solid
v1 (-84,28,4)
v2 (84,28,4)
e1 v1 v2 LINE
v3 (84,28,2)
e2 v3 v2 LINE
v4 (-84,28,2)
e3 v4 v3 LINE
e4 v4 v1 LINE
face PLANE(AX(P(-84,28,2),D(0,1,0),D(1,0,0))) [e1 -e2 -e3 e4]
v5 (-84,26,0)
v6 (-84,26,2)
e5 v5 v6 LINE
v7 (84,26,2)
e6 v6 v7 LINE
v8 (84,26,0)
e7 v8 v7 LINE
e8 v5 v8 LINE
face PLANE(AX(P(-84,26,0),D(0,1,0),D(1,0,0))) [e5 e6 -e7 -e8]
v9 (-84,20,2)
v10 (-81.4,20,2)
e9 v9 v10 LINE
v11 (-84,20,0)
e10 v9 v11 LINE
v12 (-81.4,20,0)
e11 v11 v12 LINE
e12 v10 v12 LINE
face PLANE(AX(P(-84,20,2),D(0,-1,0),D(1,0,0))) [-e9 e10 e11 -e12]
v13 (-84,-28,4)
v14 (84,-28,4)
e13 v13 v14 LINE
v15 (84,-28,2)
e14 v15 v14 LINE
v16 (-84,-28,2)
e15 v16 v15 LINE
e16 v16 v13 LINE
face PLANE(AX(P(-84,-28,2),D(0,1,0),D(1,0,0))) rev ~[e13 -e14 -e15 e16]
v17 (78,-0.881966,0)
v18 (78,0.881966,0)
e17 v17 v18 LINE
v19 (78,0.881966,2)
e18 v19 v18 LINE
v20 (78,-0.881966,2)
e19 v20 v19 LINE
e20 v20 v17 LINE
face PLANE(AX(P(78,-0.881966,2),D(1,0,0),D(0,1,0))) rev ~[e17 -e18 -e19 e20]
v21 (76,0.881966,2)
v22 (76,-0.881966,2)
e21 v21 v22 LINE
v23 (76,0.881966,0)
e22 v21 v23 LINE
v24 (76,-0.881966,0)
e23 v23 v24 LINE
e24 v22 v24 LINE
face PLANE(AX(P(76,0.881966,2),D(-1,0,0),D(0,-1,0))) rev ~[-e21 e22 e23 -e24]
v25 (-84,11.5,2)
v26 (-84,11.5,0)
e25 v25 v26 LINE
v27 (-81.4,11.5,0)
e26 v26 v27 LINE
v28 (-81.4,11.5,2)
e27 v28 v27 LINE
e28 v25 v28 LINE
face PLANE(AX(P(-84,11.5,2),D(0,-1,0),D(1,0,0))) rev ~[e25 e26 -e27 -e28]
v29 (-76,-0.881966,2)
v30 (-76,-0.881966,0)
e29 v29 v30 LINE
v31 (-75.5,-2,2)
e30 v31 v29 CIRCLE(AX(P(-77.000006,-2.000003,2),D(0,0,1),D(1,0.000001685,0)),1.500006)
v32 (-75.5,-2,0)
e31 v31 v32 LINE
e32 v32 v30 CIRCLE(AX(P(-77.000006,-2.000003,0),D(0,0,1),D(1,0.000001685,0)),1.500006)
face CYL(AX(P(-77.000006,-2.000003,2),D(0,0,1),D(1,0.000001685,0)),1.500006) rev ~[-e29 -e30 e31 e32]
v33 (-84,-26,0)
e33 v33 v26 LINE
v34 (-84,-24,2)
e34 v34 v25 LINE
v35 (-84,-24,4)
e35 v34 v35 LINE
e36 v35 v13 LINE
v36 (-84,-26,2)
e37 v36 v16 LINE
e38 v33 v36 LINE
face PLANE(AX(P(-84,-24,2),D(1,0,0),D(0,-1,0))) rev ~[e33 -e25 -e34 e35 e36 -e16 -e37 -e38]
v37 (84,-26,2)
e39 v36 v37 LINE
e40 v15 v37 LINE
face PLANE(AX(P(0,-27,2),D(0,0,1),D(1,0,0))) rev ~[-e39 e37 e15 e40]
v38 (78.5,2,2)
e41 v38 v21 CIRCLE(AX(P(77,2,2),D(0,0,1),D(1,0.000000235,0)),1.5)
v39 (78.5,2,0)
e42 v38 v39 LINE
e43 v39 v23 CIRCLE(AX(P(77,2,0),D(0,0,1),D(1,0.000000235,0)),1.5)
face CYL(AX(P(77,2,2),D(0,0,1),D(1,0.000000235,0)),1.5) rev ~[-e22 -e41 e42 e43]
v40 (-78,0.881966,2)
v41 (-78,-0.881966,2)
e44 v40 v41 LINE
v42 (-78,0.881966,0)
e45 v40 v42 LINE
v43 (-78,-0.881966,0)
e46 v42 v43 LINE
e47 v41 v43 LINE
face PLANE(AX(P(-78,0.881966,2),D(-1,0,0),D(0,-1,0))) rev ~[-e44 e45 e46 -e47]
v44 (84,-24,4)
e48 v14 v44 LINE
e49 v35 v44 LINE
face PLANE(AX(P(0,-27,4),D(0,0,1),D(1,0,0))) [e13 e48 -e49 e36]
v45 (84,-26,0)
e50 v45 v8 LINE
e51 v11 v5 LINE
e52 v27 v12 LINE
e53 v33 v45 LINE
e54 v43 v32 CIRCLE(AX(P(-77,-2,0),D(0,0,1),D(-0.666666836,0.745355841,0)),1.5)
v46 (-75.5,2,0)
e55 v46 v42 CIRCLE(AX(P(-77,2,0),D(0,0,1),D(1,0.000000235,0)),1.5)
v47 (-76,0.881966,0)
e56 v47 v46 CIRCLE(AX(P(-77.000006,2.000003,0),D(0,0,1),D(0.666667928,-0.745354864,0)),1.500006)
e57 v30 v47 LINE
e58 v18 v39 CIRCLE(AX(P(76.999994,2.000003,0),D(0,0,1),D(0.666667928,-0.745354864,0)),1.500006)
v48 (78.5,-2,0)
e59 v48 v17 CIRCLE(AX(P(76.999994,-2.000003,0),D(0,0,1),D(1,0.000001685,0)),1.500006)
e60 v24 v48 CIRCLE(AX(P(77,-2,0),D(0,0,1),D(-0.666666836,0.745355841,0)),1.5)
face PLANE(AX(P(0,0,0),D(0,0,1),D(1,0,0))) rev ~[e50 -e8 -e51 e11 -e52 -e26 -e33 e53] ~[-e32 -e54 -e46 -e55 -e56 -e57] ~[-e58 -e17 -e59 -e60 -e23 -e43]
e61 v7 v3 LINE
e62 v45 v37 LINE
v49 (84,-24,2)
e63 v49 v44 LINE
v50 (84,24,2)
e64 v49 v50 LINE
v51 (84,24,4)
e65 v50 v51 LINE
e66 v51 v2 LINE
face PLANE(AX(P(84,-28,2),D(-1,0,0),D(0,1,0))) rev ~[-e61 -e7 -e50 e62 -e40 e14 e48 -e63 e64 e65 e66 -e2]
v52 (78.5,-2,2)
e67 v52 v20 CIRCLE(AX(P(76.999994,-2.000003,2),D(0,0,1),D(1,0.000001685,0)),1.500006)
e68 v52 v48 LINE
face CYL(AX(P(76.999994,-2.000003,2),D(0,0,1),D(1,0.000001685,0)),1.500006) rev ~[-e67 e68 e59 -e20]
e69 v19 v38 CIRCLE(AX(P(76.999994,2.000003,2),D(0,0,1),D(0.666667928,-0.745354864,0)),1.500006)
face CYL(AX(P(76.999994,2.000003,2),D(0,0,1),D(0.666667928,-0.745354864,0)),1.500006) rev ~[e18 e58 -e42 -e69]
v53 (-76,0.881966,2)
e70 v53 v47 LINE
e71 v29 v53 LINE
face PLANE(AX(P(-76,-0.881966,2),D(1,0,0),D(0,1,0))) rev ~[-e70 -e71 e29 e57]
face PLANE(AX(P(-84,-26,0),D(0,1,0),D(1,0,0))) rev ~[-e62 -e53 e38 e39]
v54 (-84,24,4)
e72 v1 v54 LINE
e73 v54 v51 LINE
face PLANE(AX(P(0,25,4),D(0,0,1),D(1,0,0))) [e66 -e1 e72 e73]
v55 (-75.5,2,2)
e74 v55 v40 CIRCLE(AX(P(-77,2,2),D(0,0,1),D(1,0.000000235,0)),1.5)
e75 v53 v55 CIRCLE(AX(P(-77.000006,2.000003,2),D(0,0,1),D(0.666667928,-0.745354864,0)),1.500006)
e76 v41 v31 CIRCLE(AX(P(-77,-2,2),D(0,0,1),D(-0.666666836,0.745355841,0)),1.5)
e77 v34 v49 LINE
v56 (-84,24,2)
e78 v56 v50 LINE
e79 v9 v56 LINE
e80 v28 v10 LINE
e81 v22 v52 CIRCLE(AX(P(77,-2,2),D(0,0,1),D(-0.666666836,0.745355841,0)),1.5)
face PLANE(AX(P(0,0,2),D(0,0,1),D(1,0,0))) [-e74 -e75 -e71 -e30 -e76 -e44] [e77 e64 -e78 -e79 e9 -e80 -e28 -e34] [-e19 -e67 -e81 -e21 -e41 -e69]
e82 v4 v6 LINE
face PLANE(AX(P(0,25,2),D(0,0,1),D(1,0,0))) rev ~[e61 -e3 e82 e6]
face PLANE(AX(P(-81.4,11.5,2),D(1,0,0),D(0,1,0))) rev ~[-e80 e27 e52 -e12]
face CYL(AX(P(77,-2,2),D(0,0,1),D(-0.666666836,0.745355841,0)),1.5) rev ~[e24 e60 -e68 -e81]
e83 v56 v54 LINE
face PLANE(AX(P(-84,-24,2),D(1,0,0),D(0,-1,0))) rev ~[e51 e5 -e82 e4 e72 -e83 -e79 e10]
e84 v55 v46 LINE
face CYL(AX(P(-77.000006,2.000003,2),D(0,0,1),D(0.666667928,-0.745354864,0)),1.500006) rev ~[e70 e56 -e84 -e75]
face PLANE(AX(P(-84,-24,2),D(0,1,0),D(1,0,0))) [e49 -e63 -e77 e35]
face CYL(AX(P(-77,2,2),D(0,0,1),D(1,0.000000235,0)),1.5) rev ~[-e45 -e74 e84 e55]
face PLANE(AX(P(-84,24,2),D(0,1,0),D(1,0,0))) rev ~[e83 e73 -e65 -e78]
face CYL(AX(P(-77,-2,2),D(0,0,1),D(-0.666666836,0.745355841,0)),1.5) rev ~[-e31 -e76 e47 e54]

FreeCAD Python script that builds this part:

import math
import FreeCAD as App
import Part
import Sketcher
from FreeCAD import Vector

doc = App.newDocument("Part")
body = doc.addObject("PartDesign::Body", "Body")

# Sketch on XY plane
sketch1 = doc.addObject("Sketcher::SketchObject", "Sketch")
body.addObject(sketch1)
sketch1.AttachmentSupport = (doc.XY_Plane, [""])
sketch1.MapMode = "FlatFace"
sketch1.addGeometry([
    Part.LineSegment(Vector(-84, 26, 0), Vector(-84, -26, 0)),
    Part.LineSegment(Vector(-84, -26, 0), Vector(84, -26, 0)),
    Part.LineSegment(Vector(84, -26, 0), Vector(84, 26, 0)),
    Part.LineSegment(Vector(84, 26, 0), Vector(-84, 26, 0)),
], False)
sketch1.addConstraint([
    Sketcher.Constraint("Coincident", 0, 2, 1, 1),
    Sketcher.Constraint("Coincident", 1, 2, 2, 1),
    Sketcher.Constraint("Coincident", 2, 2, 3, 1),
    Sketcher.Constraint("Coincident", 3, 2, 0, 1),
    Sketcher.Constraint("Vertical", 0),
    Sketcher.Constraint("Horizontal", 1),
    Sketcher.Constraint("Vertical", 2),
    Sketcher.Constraint("Horizontal", 3),
    Sketcher.Constraint("Symmetric", 0, 2, 2, 2, -1, 1),
    Sketcher.Constraint("DistanceX", 1, 1, 1, 2, 168.0),
    Sketcher.Constraint("DistanceY", 0, 2, 0, 1, 52.0),
])
pad1 = doc.addObject("PartDesign::Pad", "Pad")
body.addObject(pad1)
pad1.Profile = sketch1
pad1.Length = 2

# Sketch on XY plane
sketch2 = doc.addObject("Sketcher::SketchObject", "Sketch001")
body.addObject(sketch2)
sketch2.AttachmentSupport = (doc.XY_Plane, [""])
sketch2.MapMode = "FlatFace"
sketch2.AttachmentOffset = App.Placement(Vector(0, 0, 2), App.Rotation())
sketch2.addGeometry([
    Part.LineSegment(Vector(-84, -28, 0), Vector(84, -28, 0)),  # 0
    Part.LineSegment(Vector(84, -28, 0), Vector(84, -24, 0)),  # 1
    Part.LineSegment(Vector(84, -24, 0), Vector(-84, -24, 0)),  # 2
    Part.LineSegment(Vector(-84, -24, 0), Vector(-84, -28, 0)),  # 3
    Part.LineSegment(Vector(-84, 24, 0), Vector(84, 24, 0)),  # 4
    Part.LineSegment(Vector(84, 24, 0), Vector(84, 28, 0)),  # 5
    Part.LineSegment(Vector(84, 28, 0), Vector(-84, 28, 0)),  # 6
    Part.LineSegment(Vector(-84, 28, 0), Vector(-84, 24, 0)),  # 7
], False)
sketch2.addConstraint([
    Sketcher.Constraint("Coincident", 0, 2, 1, 1),
    Sketcher.Constraint("Coincident", 1, 2, 2, 1),
    Sketcher.Constraint("Coincident", 2, 2, 3, 1),
    Sketcher.Constraint("Coincident", 3, 2, 0, 1),
    Sketcher.Constraint("Coincident", 4, 2, 5, 1),
    Sketcher.Constraint("Coincident", 5, 2, 6, 1),
    Sketcher.Constraint("Coincident", 6, 2, 7, 1),
    Sketcher.Constraint("Coincident", 7, 2, 4, 1),
    Sketcher.Constraint("Horizontal", 0),
    Sketcher.Constraint("Vertical", 1),
    Sketcher.Constraint("Horizontal", 2),
    Sketcher.Constraint("Vertical", 3),
    Sketcher.Constraint("Horizontal", 4),
    Sketcher.Constraint("Vertical", 5),
    Sketcher.Constraint("Horizontal", 6),
    Sketcher.Constraint("Vertical", 7),
    Sketcher.Constraint("Symmetric", 2, 2, 4, 2, -1, 1),
    Sketcher.Constraint("Symmetric", 0, 2, 6, 2, -1, 1),
    Sketcher.Constraint("Vertical", 1, 2, 4, 2),
    Sketcher.Constraint("DistanceX", 0, 1, 0, 2, 168.0),
    Sketcher.Constraint("DistanceY", 1, 1, 1, 2, 4.0),
    Sketcher.Constraint("DistanceY", 0, 2, -1, 1, 28.0),
])
pad2 = doc.addObject("PartDesign::Pad", "Pad001")
body.addObject(pad2)
pad2.Profile = sketch2
pad2.Length = 2

# Sketch on XY plane
sketch3 = doc.addObject("Sketcher::SketchObject", "Sketch002")
body.addObject(sketch3)
sketch3.AttachmentSupport = (doc.XY_Plane, [""])
sketch3.MapMode = "FlatFace"
sketch3.AttachmentOffset = App.Placement(Vector(0, 0, 2), App.Rotation())
sketch3.addGeometry([
    Part.ArcOfCircle(Part.Circle(Vector(77, -2, 0), Vector(0, 0, 1), 1.5), math.radians(0), math.radians(48)),  # 0
    Part.LineSegment(Vector(78, -0.9, 0), Vector(78, 0.9, 0)),  # 1
    Part.ArcOfCircle(Part.Circle(Vector(77, 2, 0), Vector(0, 0, 1), 1.5), math.radians(-48), math.radians(0)),  # 2
    Part.ArcOfCircle(Part.Circle(Vector(77, 2, 0), Vector(0, 0, 1), 1.5), math.radians(0), math.radians(228)),  # 3
    Part.LineSegment(Vector(76, 0.9, 0), Vector(76, -0.9, 0)),  # 4
    Part.ArcOfCircle(Part.Circle(Vector(77, -2, 0), Vector(0, 0, 1), 1.5), math.radians(132), math.radians(360)),  # 5
    Part.ArcOfCircle(Part.Circle(Vector(-77, -2, 0), Vector(0, 0, 1), 1.5), math.radians(132), math.radians(360)),  # 6
    Part.ArcOfCircle(Part.Circle(Vector(-77, -2, 0), Vector(0, 0, 1), 1.5), math.radians(0), math.radians(48)),  # 7
    Part.LineSegment(Vector(-76, -0.9, 0), Vector(-76, 0.9, 0)),  # 8
    Part.ArcOfCircle(Part.Circle(Vector(-77, 2, 0), Vector(0, 0, 1), 1.5), math.radians(-48), math.radians(0)),  # 9
    Part.ArcOfCircle(Part.Circle(Vector(-77, 2, 0), Vector(0, 0, 1), 1.5), math.radians(0), math.radians(228)),  # 10
    Part.LineSegment(Vector(-78, 0.9, 0), Vector(-78, -0.9, 0)),  # 11
], False)
sketch3.addConstraint([
    Sketcher.Constraint("Coincident", 0, 2, 1, 1),
    Sketcher.Constraint("Coincident", 1, 2, 2, 1),
    Sketcher.Constraint("Tangent", 2, 2, 3, 1),
    Sketcher.Constraint("Coincident", 3, 2, 4, 1),
    Sketcher.Constraint("Coincident", 4, 2, 5, 1),
    Sketcher.Constraint("Tangent", 5, 2, 0, 1),
    Sketcher.Constraint("Tangent", 6, 2, 7, 1),
    Sketcher.Constraint("Coincident", 7, 2, 8, 1),
    Sketcher.Constraint("Coincident", 8, 2, 9, 1),
    Sketcher.Constraint("Tangent", 9, 2, 10, 1),
    Sketcher.Constraint("Coincident", 10, 2, 11, 1),
    Sketcher.Constraint("Coincident", 11, 2, 6, 1),
    Sketcher.Constraint("Vertical", 1),
    Sketcher.Constraint("Vertical", 4),
    Sketcher.Constraint("Vertical", 8),
    Sketcher.Constraint("Vertical", 11),
    Sketcher.Constraint("Equal", 0, 2),
    Sketcher.Constraint("Equal", 3, 5),
    Sketcher.Constraint("Equal", 5, 6),
    Sketcher.Constraint("Equal", 2, 7),
    Sketcher.Constraint("Equal", 7, 9),
    Sketcher.Constraint("Equal", 6, 10),
    Sketcher.Constraint("Symmetric", 2, 3, 6, 3, -1, 1),
    Sketcher.Constraint("Symmetric", 5, 3, 9, 3, -1, 1),
    Sketcher.Constraint("Symmetric", 3, 2, 7, 2, -1, 1),
    Sketcher.Constraint("Symmetric", 0, 3, 6, 3, -2),
    Sketcher.Constraint("Horizontal", 10, 3, 2, 2),
    Sketcher.Constraint("Horizontal", 1, 2, 3, 2),
    Sketcher.Constraint("Horizontal", 6, 3, 5, 2),
    Sketcher.Constraint("Horizontal", 5, 2, 6, 2),
    Sketcher.Constraint("Horizontal", 2, 2, 9, 2),
    Sketcher.Constraint("Horizontal", 8, 2, 10, 2),
    Sketcher.Constraint("Radius", 3, 1.5),
    Sketcher.Constraint("DistanceX", -1, 1, 3, 3, 77.0),
    Sketcher.Constraint("DistanceY", -1, 1, 3, 3, 2.0),
    Sketcher.Constraint("DistanceX", -1, 1, 0, 2, 78.0),
])
pocket1 = doc.addObject("PartDesign::Pocket", "Pocket")
body.addObject(pocket1)
pocket1.Profile = sketch3
pocket1.Length = 25

# Sketch on XY plane
sketch4 = doc.addObject("Sketcher::SketchObject", "Sketch003")
body.addObject(sketch4)
sketch4.AttachmentSupport = (doc.XY_Plane, [""])
sketch4.MapMode = "FlatFace"
sketch4.AttachmentOffset = App.Placement(Vector(0, 0, 2), App.Rotation())
sketch4.addGeometry([
    Part.LineSegment(Vector(-84, 20, 0), Vector(-84, 11.5, 0)),
    Part.LineSegment(Vector(-84, 11.5, 0), Vector(-81.4, 11.5, 0)),
    Part.LineSegment(Vector(-81.4, 11.5, 0), Vector(-81.4, 20, 0)),
    Part.LineSegment(Vector(-81.4, 20, 0), Vector(-84, 20, 0)),
], False)
sketch4.addConstraint([
    Sketcher.Constraint("Coincident", 0, 2, 1, 1),
    Sketcher.Constraint("Coincident", 1, 2, 2, 1),
    Sketcher.Constraint("Coincident", 2, 2, 3, 1),
    Sketcher.Constraint("Coincident", 3, 2, 0, 1),
    Sketcher.Constraint("Vertical", 0),
    Sketcher.Constraint("Horizontal", 1),
    Sketcher.Constraint("Vertical", 2),
    Sketcher.Constraint("Horizontal", 3),
    Sketcher.Constraint("DistanceX", 1, 1, 1, 2, 2.6),
    Sketcher.Constraint("DistanceY", 0, 2, 0, 1, 8.5),
    Sketcher.Constraint("DistanceX", 0, 2, -1, 1, 84.0),
    Sketcher.Constraint("DistanceY", -1, 1, 2, 2, 20.0),
])
pocket2 = doc.addObject("PartDesign::Pocket", "Pocket001")
body.addObject(pocket2)
pocket2.Profile = sketch4
pocket2.Length = 25

doc.recompute()
